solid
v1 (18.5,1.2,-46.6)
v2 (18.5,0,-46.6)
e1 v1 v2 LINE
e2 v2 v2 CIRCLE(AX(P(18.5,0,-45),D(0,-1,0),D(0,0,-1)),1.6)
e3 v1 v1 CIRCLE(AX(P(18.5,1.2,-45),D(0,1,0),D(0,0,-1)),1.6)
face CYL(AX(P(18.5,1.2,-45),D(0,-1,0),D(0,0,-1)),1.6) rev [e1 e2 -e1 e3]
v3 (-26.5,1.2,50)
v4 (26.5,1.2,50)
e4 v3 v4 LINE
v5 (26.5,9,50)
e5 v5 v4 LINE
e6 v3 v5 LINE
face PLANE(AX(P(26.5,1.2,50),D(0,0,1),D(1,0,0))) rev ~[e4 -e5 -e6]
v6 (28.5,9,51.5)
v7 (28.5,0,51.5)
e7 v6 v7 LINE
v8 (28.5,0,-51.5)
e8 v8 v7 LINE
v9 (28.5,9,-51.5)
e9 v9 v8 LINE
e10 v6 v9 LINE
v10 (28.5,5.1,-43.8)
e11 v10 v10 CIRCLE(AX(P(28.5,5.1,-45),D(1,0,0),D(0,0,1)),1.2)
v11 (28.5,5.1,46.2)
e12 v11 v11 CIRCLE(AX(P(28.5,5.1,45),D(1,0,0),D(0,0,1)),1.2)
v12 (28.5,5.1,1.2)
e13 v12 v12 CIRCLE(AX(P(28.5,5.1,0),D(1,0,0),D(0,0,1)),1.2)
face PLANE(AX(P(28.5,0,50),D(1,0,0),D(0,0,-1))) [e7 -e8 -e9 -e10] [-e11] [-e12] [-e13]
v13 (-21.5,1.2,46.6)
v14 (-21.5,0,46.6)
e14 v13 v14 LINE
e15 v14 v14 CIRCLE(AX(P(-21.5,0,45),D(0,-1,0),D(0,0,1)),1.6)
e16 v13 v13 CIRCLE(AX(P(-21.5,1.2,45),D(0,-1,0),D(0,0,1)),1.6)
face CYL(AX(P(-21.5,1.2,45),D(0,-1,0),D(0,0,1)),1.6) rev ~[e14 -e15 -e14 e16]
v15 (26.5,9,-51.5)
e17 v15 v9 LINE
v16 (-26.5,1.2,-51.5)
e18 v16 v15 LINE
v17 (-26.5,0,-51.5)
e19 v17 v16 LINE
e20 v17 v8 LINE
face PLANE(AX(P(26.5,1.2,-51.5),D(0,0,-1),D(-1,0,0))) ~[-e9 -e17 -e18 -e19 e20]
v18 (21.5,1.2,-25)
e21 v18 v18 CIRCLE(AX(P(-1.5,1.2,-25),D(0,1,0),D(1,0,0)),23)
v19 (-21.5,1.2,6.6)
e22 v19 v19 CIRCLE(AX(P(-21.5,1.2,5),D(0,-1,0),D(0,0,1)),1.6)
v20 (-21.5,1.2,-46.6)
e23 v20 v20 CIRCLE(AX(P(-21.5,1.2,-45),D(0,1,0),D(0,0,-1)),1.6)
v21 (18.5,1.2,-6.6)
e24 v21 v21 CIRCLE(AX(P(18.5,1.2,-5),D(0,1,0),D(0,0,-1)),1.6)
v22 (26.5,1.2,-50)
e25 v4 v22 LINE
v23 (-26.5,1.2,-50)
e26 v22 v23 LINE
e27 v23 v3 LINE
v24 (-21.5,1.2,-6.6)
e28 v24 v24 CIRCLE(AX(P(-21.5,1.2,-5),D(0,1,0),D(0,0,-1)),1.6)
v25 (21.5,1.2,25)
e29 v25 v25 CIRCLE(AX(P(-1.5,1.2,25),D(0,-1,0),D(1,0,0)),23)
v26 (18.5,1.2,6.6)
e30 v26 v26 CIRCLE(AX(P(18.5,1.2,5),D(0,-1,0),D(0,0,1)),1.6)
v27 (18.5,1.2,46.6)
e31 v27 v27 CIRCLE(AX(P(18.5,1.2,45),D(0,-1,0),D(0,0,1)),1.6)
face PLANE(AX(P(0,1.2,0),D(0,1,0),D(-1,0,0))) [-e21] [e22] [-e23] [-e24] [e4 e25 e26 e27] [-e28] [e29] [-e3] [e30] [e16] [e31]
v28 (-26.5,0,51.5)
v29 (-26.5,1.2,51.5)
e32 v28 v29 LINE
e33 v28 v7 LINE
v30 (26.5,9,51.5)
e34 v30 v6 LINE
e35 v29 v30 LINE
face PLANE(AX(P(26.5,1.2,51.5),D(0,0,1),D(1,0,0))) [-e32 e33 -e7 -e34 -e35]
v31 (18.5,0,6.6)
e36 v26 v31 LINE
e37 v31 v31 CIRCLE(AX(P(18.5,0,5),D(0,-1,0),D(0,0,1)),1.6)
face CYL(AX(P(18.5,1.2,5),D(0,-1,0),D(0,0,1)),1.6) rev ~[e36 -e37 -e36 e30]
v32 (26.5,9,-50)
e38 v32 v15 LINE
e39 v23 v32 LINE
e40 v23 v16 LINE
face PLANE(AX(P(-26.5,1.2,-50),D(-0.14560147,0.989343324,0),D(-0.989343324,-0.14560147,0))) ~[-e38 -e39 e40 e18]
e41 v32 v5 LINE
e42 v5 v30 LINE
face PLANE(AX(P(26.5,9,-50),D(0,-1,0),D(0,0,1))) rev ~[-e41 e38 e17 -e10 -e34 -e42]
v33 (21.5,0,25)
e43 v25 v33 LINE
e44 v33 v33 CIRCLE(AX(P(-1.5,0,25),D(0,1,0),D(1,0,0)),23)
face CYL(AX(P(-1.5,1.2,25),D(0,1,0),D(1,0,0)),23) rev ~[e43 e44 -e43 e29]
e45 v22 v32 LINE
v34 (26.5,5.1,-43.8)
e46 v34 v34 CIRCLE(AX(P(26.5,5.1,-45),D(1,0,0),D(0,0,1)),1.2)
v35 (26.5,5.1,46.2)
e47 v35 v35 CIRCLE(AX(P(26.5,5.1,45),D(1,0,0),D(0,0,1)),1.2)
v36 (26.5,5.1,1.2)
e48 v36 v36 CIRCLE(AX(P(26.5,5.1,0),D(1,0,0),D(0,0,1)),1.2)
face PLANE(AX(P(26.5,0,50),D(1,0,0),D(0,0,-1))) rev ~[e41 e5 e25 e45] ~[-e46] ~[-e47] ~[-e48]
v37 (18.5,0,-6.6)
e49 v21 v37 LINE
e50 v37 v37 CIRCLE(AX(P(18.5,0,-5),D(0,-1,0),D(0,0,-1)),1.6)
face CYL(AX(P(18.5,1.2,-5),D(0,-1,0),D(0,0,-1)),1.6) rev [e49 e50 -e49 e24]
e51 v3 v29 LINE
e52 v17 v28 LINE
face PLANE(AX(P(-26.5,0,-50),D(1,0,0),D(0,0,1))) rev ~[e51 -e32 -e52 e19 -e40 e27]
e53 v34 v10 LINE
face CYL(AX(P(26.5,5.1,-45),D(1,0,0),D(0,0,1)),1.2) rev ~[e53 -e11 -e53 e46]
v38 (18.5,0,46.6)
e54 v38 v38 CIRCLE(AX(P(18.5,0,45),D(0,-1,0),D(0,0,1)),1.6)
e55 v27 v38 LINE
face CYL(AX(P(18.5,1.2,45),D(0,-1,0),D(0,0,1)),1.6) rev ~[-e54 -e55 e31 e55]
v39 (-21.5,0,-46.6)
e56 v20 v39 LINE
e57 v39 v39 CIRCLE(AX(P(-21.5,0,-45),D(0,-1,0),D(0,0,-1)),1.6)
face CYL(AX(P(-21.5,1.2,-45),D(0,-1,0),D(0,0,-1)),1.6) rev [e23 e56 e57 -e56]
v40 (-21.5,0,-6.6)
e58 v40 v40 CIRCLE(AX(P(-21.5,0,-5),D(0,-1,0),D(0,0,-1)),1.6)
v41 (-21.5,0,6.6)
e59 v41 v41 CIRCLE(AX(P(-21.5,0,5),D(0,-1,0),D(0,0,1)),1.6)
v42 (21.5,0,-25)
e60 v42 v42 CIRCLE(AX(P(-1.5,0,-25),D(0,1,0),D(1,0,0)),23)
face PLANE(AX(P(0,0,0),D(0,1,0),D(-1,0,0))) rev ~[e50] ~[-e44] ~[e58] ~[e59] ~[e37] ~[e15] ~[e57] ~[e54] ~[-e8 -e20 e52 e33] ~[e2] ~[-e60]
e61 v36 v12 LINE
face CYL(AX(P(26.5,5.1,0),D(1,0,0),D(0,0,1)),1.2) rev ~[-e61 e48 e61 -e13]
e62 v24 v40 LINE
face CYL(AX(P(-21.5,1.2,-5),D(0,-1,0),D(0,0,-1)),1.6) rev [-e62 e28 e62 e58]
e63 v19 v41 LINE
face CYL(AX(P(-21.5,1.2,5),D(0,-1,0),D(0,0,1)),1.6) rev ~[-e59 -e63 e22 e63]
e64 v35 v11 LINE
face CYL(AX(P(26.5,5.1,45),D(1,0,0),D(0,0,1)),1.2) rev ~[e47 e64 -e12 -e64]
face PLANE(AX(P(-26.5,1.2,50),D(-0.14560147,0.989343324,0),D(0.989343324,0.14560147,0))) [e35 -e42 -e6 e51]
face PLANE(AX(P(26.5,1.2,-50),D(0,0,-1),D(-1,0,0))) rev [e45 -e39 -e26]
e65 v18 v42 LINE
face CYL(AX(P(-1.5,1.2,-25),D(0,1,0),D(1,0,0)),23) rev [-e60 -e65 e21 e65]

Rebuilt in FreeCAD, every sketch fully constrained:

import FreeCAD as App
import Part
import Sketcher
Q = App.Units.Quantity


def add_polygon(sketch, points):
    """Adds a closed chain of lines whose ends are joined by coincident constraints."""
    first, n = sketch.GeometryCount, len(points)
    for a, b in zip(points, points[1:] + points[:1]):
        sketch.addGeometry(Part.LineSegment(App.Vector(*a, 0), App.Vector(*b, 0)), False)
    for i in range(n):
        sketch.addConstraint(Sketcher.Constraint("Coincident", first + i, 2, first + (i + 1) % n, 1))

doc = App.newDocument("Part")
params = doc.addObject("Spreadsheet::Sheet", "Params")
for row, (alias, value) in enumerate([
    ("sketch1_width", "53 mm"),
    ("sketch1_height", "100 mm"),
    ("pad1_length", "1.2 mm"),
    ("sketch2_width", "9 mm"),
    ("sketch2_height", "100 mm"),
    ("pad2_length", "2 mm"),
    ("sketch3_width", "55 mm"),
    ("sketch3_width2", "2 mm"),
    ("sketch3_height", "9 mm"),
    ("sketch3_height2", "1.2 mm"),
    ("pad3_length", "1.5 mm"),
    ("sketch4_diameter", "2.4 mm"),
    ("hole_diameter", "2.4 mm"),
    ("sketch5_diameter", "46 mm"),
    ("sketch6_diameter", "3.2 mm"),
    ("hole2_diameter", "3.2 mm"),
], start=1):
    params.set(f"A{row}", alias)
    params.set(f"B{row}", "=" + value)
    params.setAlias(f"B{row}", alias)

body = doc.addObject("PartDesign::Body", "Body")

# Sketch on XZ plane
sketch1 = body.newObject("Sketcher::SketchObject", "Sketch")
sketch1.AttachmentSupport = (doc.getObject("XZ_Plane"), [""])
sketch1.MapMode = "FlatFace"
add_polygon(sketch1, [(26.5, 50), (26.5, -50), (-26.5, -50), (-26.5, 50)])  # lines 0-3
sketch1.addConstraint(Sketcher.Constraint("Vertical", 0))
sketch1.addConstraint(Sketcher.Constraint("Horizontal", 1))
sketch1.addConstraint(Sketcher.Constraint("Vertical", 2))
sketch1.addConstraint(Sketcher.Constraint("Horizontal", 3))
sketch1.addConstraint(Sketcher.Constraint("Symmetric", 0, 2, 2, 2, -1, 1))
sketch1.addConstraint(Sketcher.Constraint("DistanceX", 1, 2, 1, 1, Q("53 mm")))
sketch1.addConstraint(Sketcher.Constraint("DistanceY", 0, 2, 0, 1, Q("100 mm")))
sketch1.setExpression("Constraints[9]", "Params.sketch1_width")
sketch1.setExpression("Constraints[10]", "Params.sketch1_height")
pad1 = body.newObject("PartDesign::Pad", "Pad")
pad1.Profile = sketch1
pad1.setExpression("Length", "Params.pad1_length")
pad1.Reversed = True

# Sketch on YZ plane
sketch2 = body.newObject("Sketcher::SketchObject", "Sketch001")
sketch2.AttachmentSupport = (doc.getObject("YZ_Plane"), [""])
sketch2.MapMode = "FlatFace"
sketch2.AttachmentOffset = App.Placement(App.Vector(0, 0, 26.5), App.Rotation())
add_polygon(sketch2, [(0, 50), (0, -50), (9, -50), (9, 50)])  # lines 0-3
sketch2.addConstraint(Sketcher.Constraint("Vertical", 0))
sketch2.addConstraint(Sketcher.Constraint("Horizontal", 1))
sketch2.addConstraint(Sketcher.Constraint("Vertical", 2))
sketch2.addConstraint(Sketcher.Constraint("Horizontal", 3))
sketch2.addConstraint(Sketcher.Constraint("Symmetric", 0, 2, 3, 2, -1, 1))
sketch2.addConstraint(Sketcher.Constraint("DistanceX", 1, 1, 1, 2, Q("9 mm")))
sketch2.addConstraint(Sketcher.Constraint("DistanceY", 0, 2, 0, 1, Q("100 mm")))
sketch2.setExpression("Constraints[9]", "Params.sketch2_width")
sketch2.setExpression("Constraints[10]", "Params.sketch2_height")
pad2 = body.newObject("PartDesign::Pad", "Pad001")
pad2.Profile = sketch2
pad2.setExpression("Length", "Params.pad2_length")

# Sketch on XY plane
sketch3 = body.newObject("Sketcher::SketchObject", "Sketch002")
sketch3.AttachmentSupport = (doc.getObject("XY_Plane"), [""])
sketch3.MapMode = "FlatFace"
sketch3.AttachmentOffset = App.Placement(App.Vector(0, 0, 50), App.Rotation())
add_polygon(sketch3, [(-26.5, 1.2), (-26.5, 0), (28.5, 0), (28.5, 9), (26.5, 9)])  # lines 0-4
sketch3.addConstraint(Sketcher.Constraint("Vertical", 0))
sketch3.addConstraint(Sketcher.Constraint("Horizontal", 1))
sketch3.addConstraint(Sketcher.Constraint("Vertical", 2))
sketch3.addConstraint(Sketcher.Constraint("Horizontal", 3))
sketch3.addConstraint(Sketcher.Constraint("PointOnObject", 0, 2, -1))
sketch3.addConstraint(Sketcher.Constraint("DistanceX", 1, 1, 1, 2, Q("55 mm")))
sketch3.addConstraint(Sketcher.Constraint("DistanceX", 3, 2, 3, 1, Q("2 mm")))
sketch3.addConstraint(Sketcher.Constraint("DistanceY", 2, 1, 2, 2, Q("9 mm")))
sketch3.addConstraint(Sketcher.Constraint("DistanceY", 0, 2, 0, 1, Q("1.2 mm")))
sketch3.addConstraint(Sketcher.Constraint("DistanceX", 0, 2, -1, 1, Q("26.5 mm")))
sketch3.setExpression("Constraints[10]", "Params.sketch3_width")
sketch3.setExpression("Constraints[11]", "Params.sketch3_width2")
sketch3.setExpression("Constraints[12]", "Params.sketch3_height")
sketch3.setExpression("Constraints[13]", "Params.sketch3_height2")
pad3 = body.newObject("PartDesign::Pad", "Pad002")
pad3.Profile = sketch3
pad3.setExpression("Length", "Params.pad3_length")
doc.recompute()

mirrored = body.newObject("PartDesign::Mirrored", "Mirrored")
mirrored.Originals = [pad3]
mirrored.MirrorPlane = (doc.getObject("XY_Plane"), [""])
body.Tip = mirrored

# Sketch on YZ plane
sketch4 = body.newObject("Sketcher::SketchObject", "Sketch003")
sketch4.AttachmentSupport = (doc.getObject("YZ_Plane"), [""])
sketch4.MapMode = "FlatFace"
sketch4.AttachmentOffset = App.Placement(App.Vector(0, 0, 26.5), App.Rotation())
sketch4.addGeometry(Part.Circle(App.Vector(5.1, 45, 0), App.Vector(0, 0, 1), 1.2), False)
sketch4.addGeometry(Part.Circle(App.Vector(5.1, 0, 0), App.Vector(0, 0, 1), 1.2), False)
sketch4.addGeometry(Part.Circle(App.Vector(5.1, -45, 0), App.Vector(0, 0, 1), 1.2), False)
sketch4.addConstraint(Sketcher.Constraint("Equal", 0, 1))
sketch4.addConstraint(Sketcher.Constraint("Equal", 1, 2))
sketch4.addConstraint(Sketcher.Constraint("Symmetric", 0, 3, 2, 3, -1))
sketch4.addConstraint(Sketcher.Constraint("PointOnObject", 1, 3, -1))
sketch4.addConstraint(Sketcher.Constraint("Vertical", 0, 3, 1, 3))
sketch4.addConstraint(Sketcher.Constraint("Diameter", 0, Q("2.4 mm")))
sketch4.addConstraint(Sketcher.Constraint("DistanceY", -1, 1, 0, 3, Q("45 mm")))
sketch4.addConstraint(Sketcher.Constraint("DistanceX", -1, 1, 0, 3, Q("5.1 mm")))
sketch4.setExpression("Constraints[5]", "Params.sketch4_diameter")
doc.recompute()
hole = body.newObject("PartDesign::Hole", "Hole")
hole.Profile = sketch4
hole.ThreadType = "None"
hole.setExpression("Diameter", "Params.hole_diameter")
hole.DepthType = "ThroughAll"
hole.Reversed = True

# Sketch on XZ plane
sketch5 = body.newObject("Sketcher::SketchObject", "Sketch004")
sketch5.AttachmentSupport = (doc.getObject("XZ_Plane"), [""])
sketch5.MapMode = "FlatFace"
sketch5.AttachmentOffset = App.Placement(App.Vector(0, 0, -1.2), App.Rotation())
sketch5.addGeometry(Part.Circle(App.Vector(-1.5, 25, 0), App.Vector(0, 0, 1), 23), False)
sketch5.addConstraint(Sketcher.Constraint("Diameter", 0, Q("46 mm")))
sketch5.addConstraint(Sketcher.Constraint("DistanceY", -1, 1, 0, 3, Q("25 mm")))
sketch5.addConstraint(Sketcher.Constraint("DistanceX", 0, 3, -1, 1, Q("1.5 mm")))
sketch5.setExpression("Constraints[0]", "Params.sketch5_diameter")
pocket1 = body.newObject("PartDesign::Pocket", "Pocket")
pocket1.Profile = sketch5
pocket1.Type = "ThroughAll"
pocket1.Reversed = True

# Sketch on XZ plane
sketch6 = body.newObject("Sketcher::SketchObject", "Sketch005")
sketch6.AttachmentSupport = (doc.getObject("XZ_Plane"), [""])
sketch6.MapMode = "FlatFace"
sketch6.AttachmentOffset = App.Placement(App.Vector(0, 0, -1.2), App.Rotation())
sketch6.addGeometry(Part.Circle(App.Vector(-21.5, 45, 0), App.Vector(0, 0, 1), 1.6), False)
sketch6.addGeometry(Part.Circle(App.Vector(-21.5, 5, 0), App.Vector(0, 0, 1), 1.6), False)
sketch6.addGeometry(Part.Circle(App.Vector(18.5, 5, 0), App.Vector(0, 0, 1), 1.6), False)
sketch6.addGeometry(Part.Circle(App.Vector(18.5, 45, 0), App.Vector(0, 0, 1), 1.6), False)
sketch6.addConstraint(Sketcher.Constraint("Equal", 0, 1))
sketch6.addConstraint(Sketcher.Constraint("Equal", 1, 2))
sketch6.addConstraint(Sketcher.Constraint("Equal", 2, 3))
sketch6.addConstraint(Sketcher.Constraint("Horizontal", 1, 3, 2, 3))
sketch6.addConstraint(Sketcher.Constraint("Horizontal", 0, 3, 3, 3))
sketch6.addConstraint(Sketcher.Constraint("Vertical", 0, 3, 1, 3))
sketch6.addConstraint(Sketcher.Constraint("Vertical", 2, 3, 3, 3))
sketch6.addConstraint(Sketcher.Constraint("Diameter", 0, Q("3.2 mm")))
sketch6.addConstraint(Sketcher.Constraint("DistanceY", -1, 1, 0, 3, Q("45 mm")))
sketch6.addConstraint(Sketcher.Constraint("DistanceY", -1, 1, 1, 3, Q("5 mm")))
sketch6.addConstraint(Sketcher.Constraint("DistanceX", 1, 3, 2, 3, Q("40 mm")))
sketch6.addConstraint(Sketcher.Constraint("DistanceX", 0, 3, -1, 1, Q("21.5 mm")))
sketch6.setExpression("Constraints[7]", "Params.sketch6_diameter")
doc.recompute()
hole2 = body.newObject("PartDesign::Hole", "Hole001")
hole2.Profile = sketch6
hole2.ThreadType = "None"
hole2.setExpression("Diameter", "Params.hole2_diameter")
hole2.DepthType = "ThroughAll"
hole2.Reversed = True
doc.recompute()

mirrored2 = body.newObject("PartDesign::Mirrored", "Mirrored001")
mirrored2.Originals = [hole2, pocket1]
mirrored2.MirrorPlane = (doc.getObject("XY_Plane"), [""])
body.Tip = mirrored2

doc.recompute()
